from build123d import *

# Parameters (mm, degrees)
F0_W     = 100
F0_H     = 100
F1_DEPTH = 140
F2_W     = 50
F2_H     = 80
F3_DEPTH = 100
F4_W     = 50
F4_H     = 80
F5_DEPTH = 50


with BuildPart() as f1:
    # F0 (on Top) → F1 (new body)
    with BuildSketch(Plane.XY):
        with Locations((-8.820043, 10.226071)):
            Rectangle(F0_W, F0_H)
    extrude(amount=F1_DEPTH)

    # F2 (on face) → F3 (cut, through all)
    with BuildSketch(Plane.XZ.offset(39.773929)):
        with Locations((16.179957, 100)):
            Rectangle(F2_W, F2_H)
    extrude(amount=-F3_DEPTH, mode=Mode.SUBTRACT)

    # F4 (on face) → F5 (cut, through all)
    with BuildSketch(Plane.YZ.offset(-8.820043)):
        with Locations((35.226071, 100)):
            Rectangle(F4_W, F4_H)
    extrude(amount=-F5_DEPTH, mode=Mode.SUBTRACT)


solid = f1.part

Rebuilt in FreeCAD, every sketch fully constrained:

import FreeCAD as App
import Part
import Sketcher
Q = App.Units.Quantity


def add_polygon(sketch, points):
    """Adds a closed chain of lines whose ends are joined by coincident constraints."""
    first, n = sketch.GeometryCount, len(points)
    for a, b in zip(points, points[1:] + points[:1]):
        sketch.addGeometry(Part.LineSegment(App.Vector(*a, 0), App.Vector(*b, 0)), False)
    for i in range(n):
        sketch.addConstraint(Sketcher.Constraint("Coincident", first + i, 2, first + (i + 1) % n, 1))

doc = App.newDocument("Part")
body = doc.addObject("PartDesign::Body", "Body")

sketch1 = body.newObject("Sketcher::SketchObject", "Sketch")
sketch1.AttachmentSupport = (doc.getObject("XY_Plane"), [""])
sketch1.MapMode = "FlatFace"
add_polygon(sketch1, [(-59, 60), (-59, -40), (41, -40), (41, 60)])
sketch1.addConstraint(Sketcher.Constraint("Vertical", 0))
sketch1.addConstraint(Sketcher.Constraint("Horizontal", 1))
sketch1.addConstraint(Sketcher.Constraint("Vertical", 2))
sketch1.addConstraint(Sketcher.Constraint("Horizontal", 3))
sketch1.addConstraint(Sketcher.Constraint("Equal", 3, 0))
sketch1.addConstraint(Sketcher.Constraint("DistanceX", 1, 1, 1, 2, Q("100 mm")))
sketch1.addConstraint(Sketcher.Constraint("DistanceY", 0, 2, -1, 1, Q("39.773929 mm")))
sketch1.addConstraint(Sketcher.Constraint("DistanceX", 0, 2, -1, 1, Q("58.820043 mm")))
pad1 = body.newObject("PartDesign::Pad", "Pad")
pad1.Profile = sketch1
pad1.Length = 140

sketch2 = body.newObject("Sketcher::SketchObject", "Sketch001")
sketch2.AttachmentSupport = (doc.getObject("XZ_Plane"), [""])
sketch2.MapMode = "FlatFace"
sketch2.AttachmentOffset = App.Placement(App.Vector(0, 0, 39.773929), App.Rotation())
add_polygon(sketch2, [(-9, 140), (-9, 60), (41, 60), (41, 140)])
sketch2.addConstraint(Sketcher.Constraint("Vertical", 0))
sketch2.addConstraint(Sketcher.Constraint("Horizontal", 1))
sketch2.addConstraint(Sketcher.Constraint("Vertical", 2))
sketch2.addConstraint(Sketcher.Constraint("Horizontal", 3))
sketch2.addConstraint(Sketcher.Constraint("DistanceX", 1, 1, 1, 2, Q("50 mm")))
sketch2.addConstraint(Sketcher.Constraint("DistanceY", 0, 2, 0, 1, Q("80 mm")))
sketch2.addConstraint(Sketcher.Constraint("DistanceY", -1, 1, 0, 2, Q("60 mm")))
sketch2.addConstraint(Sketcher.Constraint("DistanceX", 0, 2, -1, 1, Q("8.820043 mm")))
pocket1 = body.newObject("PartDesign::Pocket", "Pocket")
pocket1.Profile = sketch2
pocket1.Type = "ThroughAll"

sketch3 = body.newObject("Sketcher::SketchObject", "Sketch002")
sketch3.AttachmentSupport = (doc.getObject("YZ_Plane"), [""])
sketch3.MapMode = "FlatFace"
sketch3.AttachmentOffset = App.Placement(App.Vector(0, 0, -8.820043), App.Rotation())
add_polygon(sketch3, [(10, 140), (10, 60), (60, 60), (60, 140)])
sketch3.addConstraint(Sketcher.Constraint("Vertical", 0))
sketch3.addConstraint(Sketcher.Constraint("Horizontal", 1))
sketch3.addConstraint(Sketcher.Constraint("Vertical", 2))
sketch3.addConstraint(Sketcher.Constraint("Horizontal", 3))
sketch3.addConstraint(Sketcher.Constraint("DistanceX", 1, 1, 1, 2, Q("50 mm")))
sketch3.addConstraint(Sketcher.Constraint("DistanceY", 0, 2, 0, 1, Q("80 mm")))
sketch3.addConstraint(Sketcher.Constraint("DistanceY", -1, 1, 0, 2, Q("60 mm")))
sketch3.addConstraint(Sketcher.Constraint("DistanceX", -1, 1, 0, 2, Q("10.226071 mm")))
pocket2 = body.newObject("PartDesign::Pocket", "Pocket001")
pocket2.Profile = sketch3
pocket2.Type = "ThroughAll"

doc.recompute()
